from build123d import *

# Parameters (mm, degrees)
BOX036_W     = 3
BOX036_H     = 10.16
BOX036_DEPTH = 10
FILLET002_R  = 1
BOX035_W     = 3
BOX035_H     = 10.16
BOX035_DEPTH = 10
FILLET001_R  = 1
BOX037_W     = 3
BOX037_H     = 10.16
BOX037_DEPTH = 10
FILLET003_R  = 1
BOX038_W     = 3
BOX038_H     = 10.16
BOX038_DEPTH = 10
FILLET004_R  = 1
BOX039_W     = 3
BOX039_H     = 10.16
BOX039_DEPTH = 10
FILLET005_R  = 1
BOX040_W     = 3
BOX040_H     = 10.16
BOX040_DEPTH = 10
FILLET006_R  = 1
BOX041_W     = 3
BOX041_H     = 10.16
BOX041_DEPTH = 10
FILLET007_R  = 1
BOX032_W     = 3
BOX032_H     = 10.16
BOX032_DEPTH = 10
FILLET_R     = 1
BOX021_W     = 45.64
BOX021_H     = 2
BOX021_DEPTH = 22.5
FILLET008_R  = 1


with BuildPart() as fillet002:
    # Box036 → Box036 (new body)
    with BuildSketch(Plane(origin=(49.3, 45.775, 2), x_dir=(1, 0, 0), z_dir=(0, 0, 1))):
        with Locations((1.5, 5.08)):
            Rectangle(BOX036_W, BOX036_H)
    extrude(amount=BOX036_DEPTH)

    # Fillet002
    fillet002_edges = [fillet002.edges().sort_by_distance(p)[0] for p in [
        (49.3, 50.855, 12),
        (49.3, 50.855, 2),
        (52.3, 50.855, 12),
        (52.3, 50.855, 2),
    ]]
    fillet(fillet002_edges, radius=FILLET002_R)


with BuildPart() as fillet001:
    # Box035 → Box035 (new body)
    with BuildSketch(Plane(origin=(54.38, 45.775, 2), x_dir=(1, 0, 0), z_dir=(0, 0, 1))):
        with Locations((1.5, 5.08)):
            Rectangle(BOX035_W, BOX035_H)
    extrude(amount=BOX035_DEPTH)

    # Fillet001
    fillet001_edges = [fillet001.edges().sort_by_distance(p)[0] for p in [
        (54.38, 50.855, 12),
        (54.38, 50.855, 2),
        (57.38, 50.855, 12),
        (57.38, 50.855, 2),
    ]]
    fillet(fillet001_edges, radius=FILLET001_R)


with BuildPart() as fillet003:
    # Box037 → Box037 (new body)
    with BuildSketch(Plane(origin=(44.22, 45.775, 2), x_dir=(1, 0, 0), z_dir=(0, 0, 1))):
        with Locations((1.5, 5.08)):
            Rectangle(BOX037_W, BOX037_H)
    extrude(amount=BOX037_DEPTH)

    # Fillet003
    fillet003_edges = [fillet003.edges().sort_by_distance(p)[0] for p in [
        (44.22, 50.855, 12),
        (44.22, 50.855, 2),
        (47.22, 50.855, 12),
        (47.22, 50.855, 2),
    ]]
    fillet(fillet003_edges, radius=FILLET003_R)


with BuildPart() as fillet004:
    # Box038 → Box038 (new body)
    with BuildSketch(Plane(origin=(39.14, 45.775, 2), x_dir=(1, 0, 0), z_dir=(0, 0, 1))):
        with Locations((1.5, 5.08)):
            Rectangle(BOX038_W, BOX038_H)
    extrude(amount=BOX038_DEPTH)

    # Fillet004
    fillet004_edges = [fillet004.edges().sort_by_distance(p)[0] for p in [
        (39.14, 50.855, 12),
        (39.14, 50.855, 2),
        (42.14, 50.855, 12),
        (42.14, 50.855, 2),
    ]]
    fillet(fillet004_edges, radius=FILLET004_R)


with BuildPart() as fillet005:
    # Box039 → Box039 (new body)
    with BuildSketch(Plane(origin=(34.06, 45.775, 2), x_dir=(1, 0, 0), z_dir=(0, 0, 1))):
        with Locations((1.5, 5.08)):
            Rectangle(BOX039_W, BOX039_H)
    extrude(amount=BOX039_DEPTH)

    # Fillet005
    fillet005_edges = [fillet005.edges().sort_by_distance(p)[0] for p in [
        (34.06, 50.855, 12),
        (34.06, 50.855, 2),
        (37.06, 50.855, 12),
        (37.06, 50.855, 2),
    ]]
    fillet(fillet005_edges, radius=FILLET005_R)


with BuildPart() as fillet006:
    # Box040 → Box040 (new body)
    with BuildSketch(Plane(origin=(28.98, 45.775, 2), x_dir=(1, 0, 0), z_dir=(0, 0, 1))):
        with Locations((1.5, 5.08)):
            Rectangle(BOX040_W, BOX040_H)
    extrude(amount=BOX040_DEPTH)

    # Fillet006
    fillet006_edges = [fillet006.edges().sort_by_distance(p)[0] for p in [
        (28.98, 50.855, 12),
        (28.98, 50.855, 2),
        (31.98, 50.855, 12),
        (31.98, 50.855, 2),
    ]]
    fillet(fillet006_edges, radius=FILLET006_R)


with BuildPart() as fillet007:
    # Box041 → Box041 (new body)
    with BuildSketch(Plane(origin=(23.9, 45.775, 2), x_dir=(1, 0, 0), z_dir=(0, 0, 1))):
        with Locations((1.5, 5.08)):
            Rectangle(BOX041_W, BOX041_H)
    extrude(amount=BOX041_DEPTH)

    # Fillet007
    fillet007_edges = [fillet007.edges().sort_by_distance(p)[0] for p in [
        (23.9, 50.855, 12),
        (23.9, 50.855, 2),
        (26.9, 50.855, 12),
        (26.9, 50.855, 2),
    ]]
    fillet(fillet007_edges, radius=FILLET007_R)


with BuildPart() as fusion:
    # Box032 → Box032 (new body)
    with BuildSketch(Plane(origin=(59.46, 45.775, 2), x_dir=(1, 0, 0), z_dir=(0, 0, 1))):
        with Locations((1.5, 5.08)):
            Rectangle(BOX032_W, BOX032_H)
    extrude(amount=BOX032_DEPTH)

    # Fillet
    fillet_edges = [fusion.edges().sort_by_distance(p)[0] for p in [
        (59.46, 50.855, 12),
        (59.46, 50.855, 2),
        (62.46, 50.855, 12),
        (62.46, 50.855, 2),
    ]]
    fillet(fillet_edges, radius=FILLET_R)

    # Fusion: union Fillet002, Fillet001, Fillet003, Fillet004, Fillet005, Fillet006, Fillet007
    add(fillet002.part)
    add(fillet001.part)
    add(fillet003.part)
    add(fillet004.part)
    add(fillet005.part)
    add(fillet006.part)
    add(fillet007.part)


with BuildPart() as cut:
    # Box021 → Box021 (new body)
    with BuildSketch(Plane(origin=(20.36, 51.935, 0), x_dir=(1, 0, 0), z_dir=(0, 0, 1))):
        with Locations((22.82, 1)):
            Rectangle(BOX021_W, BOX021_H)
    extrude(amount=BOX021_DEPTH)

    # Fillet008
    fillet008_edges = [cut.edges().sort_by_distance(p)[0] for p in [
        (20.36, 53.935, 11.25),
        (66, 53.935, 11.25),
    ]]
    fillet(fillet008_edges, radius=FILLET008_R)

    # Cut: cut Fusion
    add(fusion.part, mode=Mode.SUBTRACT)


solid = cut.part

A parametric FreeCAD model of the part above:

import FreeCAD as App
import Part
import Sketcher
from FreeCAD import Vector
Q = App.Units.Quantity


def edges_at(feature, points):
    """Names of the edges that pass closest to the given points."""
    edges = feature.Shape.Edges
    near = lambda p: min(range(len(edges)), key=lambda i: edges[i].distToShape(Part.Vertex(*p))[0])
    return sorted({f"Edge{near(p) + 1}" for p in points})


def add_polygon(sketch, points):
    """Adds a closed chain of lines whose ends are joined by coincident constraints."""
    first, n = sketch.GeometryCount, len(points)
    for a, b in zip(points, points[1:] + points[:1]):
        sketch.addGeometry(Part.LineSegment(App.Vector(*a, 0), App.Vector(*b, 0)), False)
    for i in range(n):
        sketch.addConstraint(Sketcher.Constraint("Coincident", first + i, 2, first + (i + 1) % n, 1))

doc = App.newDocument("Part")
params = doc.addObject("Spreadsheet::Sheet", "Params")
for row, (alias, value) in enumerate([
    ("sketch1_width", "3 mm"),
    ("sketch1_height", "10.16 mm"),
    ("pad1_length", "10 mm"),
    ("fillet_radius", "1 mm"),
    ("sketch2_width", "3 mm"),
    ("sketch2_height", "10.16 mm"),
    ("pad2_length", "10 mm"),
    ("fillet2_radius", "1 mm"),
    ("sketch3_width", "3 mm"),
    ("sketch3_height", "10.16 mm"),
    ("pad3_length", "10 mm"),
    ("fillet3_radius", "1 mm"),
    ("sketch4_width", "3 mm"),
    ("sketch4_height", "10.16 mm"),
    ("pad4_length", "10 mm"),
    ("fillet4_radius", "1 mm"),
    ("sketch5_width", "3 mm"),
    ("sketch5_height", "10.16 mm"),
    ("pad5_length", "10 mm"),
    ("fillet5_radius", "1 mm"),
    ("sketch6_width", "3 mm"),
    ("sketch6_height", "10.16 mm"),
    ("pad6_length", "10 mm"),
    ("fillet6_radius", "1 mm"),
    ("sketch7_width", "3 mm"),
    ("sketch7_height", "10.16 mm"),
    ("pad7_length", "10 mm"),
    ("fillet7_radius", "1 mm"),
    ("sketch8_width", "3 mm"),
    ("sketch8_height", "10.16 mm"),
    ("pad8_length", "10 mm"),
    ("fillet8_radius", "1 mm"),
    ("sketch9_height", "2 mm"),
    ("sketch9_width", "45.64 mm"),
    ("pad9_length", "22.5 mm"),
    ("fillet9_radius", "1 mm"),
], start=1):
    params.set(f"A{row}", alias)
    params.set(f"B{row}", "=" + value)
    params.setAlias(f"B{row}", alias)

body = doc.addObject("PartDesign::Body", "Body")

sketch1 = body.newObject("Sketcher::SketchObject", "Sketch")
sketch1.AttachmentSupport = (doc.getObject("XY_Plane"), [""])
sketch1.MapMode = "FlatFace"
sketch1.AttachmentOffset = App.Placement(Vector(0, 0, 2), App.Rotation())
add_polygon(sketch1, [(49.3, 55.9), (49.3, 45.8), (52.3, 45.8), (52.3, 55.9)])
sketch1.addConstraint(Sketcher.Constraint("Vertical", 0))
sketch1.addConstraint(Sketcher.Constraint("Horizontal", 1))
sketch1.addConstraint(Sketcher.Constraint("Vertical", 2))
sketch1.addConstraint(Sketcher.Constraint("Horizontal", 3))
sketch1.addConstraint(Sketcher.Constraint("DistanceX", 1, 1, 1, 2, Q("3 mm")))
sketch1.addConstraint(Sketcher.Constraint("DistanceY", 0, 2, 0, 1, Q("10.16 mm")))
sketch1.addConstraint(Sketcher.Constraint("DistanceX", -1, 1, 0, 2, Q("49.3 mm")))
sketch1.addConstraint(Sketcher.Constraint("DistanceY", -1, 1, 0, 2, Q("45.775 mm")))
sketch1.setExpression("Constraints[8]", "Params.sketch1_width")
sketch1.setExpression("Constraints[9]", "Params.sketch1_height")
pad1 = body.newObject("PartDesign::Pad", "Pad")
pad1.Profile = sketch1
pad1.setExpression("Length", "Params.pad1_length")
doc.recompute()

fillet = body.newObject("PartDesign::Fillet", "Fillet")
fillet.Base = (pad1, edges_at(pad1, [
    (49.3, 50.855, 12),
    (49.3, 50.855, 2),
    (52.3, 50.855, 12),
    (52.3, 50.855, 2),
]))
fillet.setExpression("Radius", "Params.fillet_radius")
body2 = doc.addObject("PartDesign::Body", "Body001")

sketch2 = body2.newObject("Sketcher::SketchObject", "Sketch001")
sketch2.AttachmentSupport = (doc.getObject("XY_Plane001"), [""])
sketch2.MapMode = "FlatFace"
sketch2.AttachmentOffset = App.Placement(Vector(0, 0, 2), App.Rotation())
add_polygon(sketch2, [(54.4, 55.9), (54.4, 45.8), (57.4, 45.8), (57.4, 55.9)])
sketch2.addConstraint(Sketcher.Constraint("Vertical", 0))
sketch2.addConstraint(Sketcher.Constraint("Horizontal", 1))
sketch2.addConstraint(Sketcher.Constraint("Vertical", 2))
sketch2.addConstraint(Sketcher.Constraint("Horizontal", 3))
sketch2.addConstraint(Sketcher.Constraint("DistanceX", 1, 1, 1, 2, Q("3 mm")))
sketch2.addConstraint(Sketcher.Constraint("DistanceY", 0, 2, 0, 1, Q("10.16 mm")))
sketch2.addConstraint(Sketcher.Constraint("DistanceX", -1, 1, 0, 2, Q("54.38 mm")))
sketch2.addConstraint(Sketcher.Constraint("DistanceY", -1, 1, 0, 2, Q("45.775 mm")))
sketch2.setExpression("Constraints[8]", "Params.sketch2_width")
sketch2.setExpression("Constraints[9]", "Params.sketch2_height")
pad2 = body2.newObject("PartDesign::Pad", "Pad001")
pad2.Profile = sketch2
pad2.setExpression("Length", "Params.pad2_length")
doc.recompute()

fillet2 = body2.newObject("PartDesign::Fillet", "Fillet001")
fillet2.Base = (pad2, edges_at(pad2, [
    (54.38, 50.855, 12),
    (54.38, 50.855, 2),
    (57.38, 50.855, 12),
    (57.38, 50.855, 2),
]))
fillet2.setExpression("Radius", "Params.fillet2_radius")
body3 = doc.addObject("PartDesign::Body", "Body002")

sketch3 = body3.newObject("Sketcher::SketchObject", "Sketch002")
sketch3.AttachmentSupport = (doc.getObject("XY_Plane002"), [""])
sketch3.MapMode = "FlatFace"
sketch3.AttachmentOffset = App.Placement(Vector(0, 0, 2), App.Rotation())
add_polygon(sketch3, [(44.2, 55.9), (44.2, 45.8), (47.2, 45.8), (47.2, 55.9)])
sketch3.addConstraint(Sketcher.Constraint("Vertical", 0))
sketch3.addConstraint(Sketcher.Constraint("Horizontal", 1))
sketch3.addConstraint(Sketcher.Constraint("Vertical", 2))
sketch3.addConstraint(Sketcher.Constraint("Horizontal", 3))
sketch3.addConstraint(Sketcher.Constraint("DistanceX", 1, 1, 1, 2, Q("3 mm")))
sketch3.addConstraint(Sketcher.Constraint("DistanceY", 0, 2, 0, 1, Q("10.16 mm")))
sketch3.addConstraint(Sketcher.Constraint("DistanceX", -1, 1, 0, 2, Q("44.22 mm")))
sketch3.addConstraint(Sketcher.Constraint("DistanceY", -1, 1, 0, 2, Q("45.775 mm")))
sketch3.setExpression("Constraints[8]", "Params.sketch3_width")
sketch3.setExpression("Constraints[9]", "Params.sketch3_height")
pad3 = body3.newObject("PartDesign::Pad", "Pad002")
pad3.Profile = sketch3
pad3.setExpression("Length", "Params.pad3_length")
doc.recompute()

fillet3 = body3.newObject("PartDesign::Fillet", "Fillet002")
fillet3.Base = (pad3, edges_at(pad3, [
    (44.22, 50.855, 12),
    (44.22, 50.855, 2),
    (47.22, 50.855, 12),
    (47.22, 50.855, 2),
]))
fillet3.setExpression("Radius", "Params.fillet3_radius")
body4 = doc.addObject("PartDesign::Body", "Body003")

sketch4 = body4.newObject("Sketcher::SketchObject", "Sketch003")
sketch4.AttachmentSupport = (doc.getObject("XY_Plane003"), [""])
sketch4.MapMode = "FlatFace"
sketch4.AttachmentOffset = App.Placement(Vector(0, 0, 2), App.Rotation())
add_polygon(sketch4, [(39.1, 55.9), (39.1, 45.8), (42.1, 45.8), (42.1, 55.9)])
sketch4.addConstraint(Sketcher.Constraint("Vertical", 0))
sketch4.addConstraint(Sketcher.Constraint("Horizontal", 1))
sketch4.addConstraint(Sketcher.Constraint("Vertical", 2))
sketch4.addConstraint(Sketcher.Constraint("Horizontal", 3))
sketch4.addConstraint(Sketcher.Constraint("DistanceX", 1, 1, 1, 2, Q("3 mm")))
sketch4.addConstraint(Sketcher.Constraint("DistanceY", 0, 2, 0, 1, Q("10.16 mm")))
sketch4.addConstraint(Sketcher.Constraint("DistanceX", -1, 1, 0, 2, Q("39.14 mm")))
sketch4.addConstraint(Sketcher.Constraint("DistanceY", -1, 1, 0, 2, Q("45.775 mm")))
sketch4.setExpression("Constraints[8]", "Params.sketch4_width")
sketch4.setExpression("Constraints[9]", "Params.sketch4_height")
pad4 = body4.newObject("PartDesign::Pad", "Pad003")
pad4.Profile = sketch4
pad4.setExpression("Length", "Params.pad4_length")
doc.recompute()

fillet4 = body4.newObject("PartDesign::Fillet", "Fillet003")
fillet4.Base = (pad4, edges_at(pad4, [
    (39.14, 50.855, 12),
    (39.14, 50.855, 2),
    (42.14, 50.855, 12),
    (42.14, 50.855, 2),
]))
fillet4.setExpression("Radius", "Params.fillet4_radius")
body5 = doc.addObject("PartDesign::Body", "Body004")

sketch5 = body5.newObject("Sketcher::SketchObject", "Sketch004")
sketch5.AttachmentSupport = (doc.getObject("XY_Plane004"), [""])
sketch5.MapMode = "FlatFace"
sketch5.AttachmentOffset = App.Placement(Vector(0, 0, 2), App.Rotation())
add_polygon(sketch5, [(34.1, 55.9), (34.1, 45.8), (37.1, 45.8), (37.1, 55.9)])
sketch5.addConstraint(Sketcher.Constraint("Vertical", 0))
sketch5.addConstraint(Sketcher.Constraint("Horizontal", 1))
sketch5.addConstraint(Sketcher.Constraint("Vertical", 2))
sketch5.addConstraint(Sketcher.Constraint("Horizontal", 3))
sketch5.addConstraint(Sketcher.Constraint("DistanceX", 1, 1, 1, 2, Q("3 mm")))
sketch5.addConstraint(Sketcher.Constraint("DistanceY", 0, 2, 0, 1, Q("10.16 mm")))
sketch5.addConstraint(Sketcher.Constraint("DistanceX", -1, 1, 0, 2, Q("34.06 mm")))
sketch5.addConstraint(Sketcher.Constraint("DistanceY", -1, 1, 0, 2, Q("45.775 mm")))
sketch5.setExpression("Constraints[8]", "Params.sketch5_width")
sketch5.setExpression("Constraints[9]", "Params.sketch5_height")
pad5 = body5.newObject("PartDesign::Pad", "Pad004")
pad5.Profile = sketch5
pad5.setExpression("Length", "Params.pad5_length")
doc.recompute()

fillet5 = body5.newObject("PartDesign::Fillet", "Fillet004")
fillet5.Base = (pad5, edges_at(pad5, [
    (34.06, 50.855, 12),
    (34.06, 50.855, 2),
    (37.06, 50.855, 12),
    (37.06, 50.855, 2),
]))
fillet5.setExpression("Radius", "Params.fillet5_radius")
body6 = doc.addObject("PartDesign::Body", "Body005")

sketch6 = body6.newObject("Sketcher::SketchObject", "Sketch005")
sketch6.AttachmentSupport = (doc.getObject("XY_Plane005"), [""])
sketch6.MapMode = "FlatFace"
sketch6.AttachmentOffset = App.Placement(Vector(0, 0, 2), App.Rotation())
add_polygon(sketch6, [(29, 55.9), (29, 45.8), (32, 45.8), (32, 55.9)])
sketch6.addConstraint(Sketcher.Constraint("Vertical", 0))
sketch6.addConstraint(Sketcher.Constraint("Horizontal", 1))
sketch6.addConstraint(Sketcher.Constraint("Vertical", 2))
sketch6.addConstraint(Sketcher.Constraint("Horizontal", 3))
sketch6.addConstraint(Sketcher.Constraint("DistanceX", 1, 1, 1, 2, Q("3 mm")))
sketch6.addConstraint(Sketcher.Constraint("DistanceY", 0, 2, 0, 1, Q("10.16 mm")))
sketch6.addConstraint(Sketcher.Constraint("DistanceX", -1, 1, 0, 2, Q("28.98 mm")))
sketch6.addConstraint(Sketcher.Constraint("DistanceY", -1, 1, 0, 2, Q("45.775 mm")))
sketch6.setExpression("Constraints[8]", "Params.sketch6_width")
sketch6.setExpression("Constraints[9]", "Params.sketch6_height")
pad6 = body6.newObject("PartDesign::Pad", "Pad005")
pad6.Profile = sketch6
pad6.setExpression("Length", "Params.pad6_length")
doc.recompute()

fillet6 = body6.newObject("PartDesign::Fillet", "Fillet005")
fillet6.Base = (pad6, edges_at(pad6, [
    (28.98, 50.855, 12),
    (28.98, 50.855, 2),
    (31.98, 50.855, 12),
    (31.98, 50.855, 2),
]))
fillet6.setExpression("Radius", "Params.fillet6_radius")
body7 = doc.addObject("PartDesign::Body", "Body006")

sketch7 = body7.newObject("Sketcher::SketchObject", "Sketch006")
sketch7.AttachmentSupport = (doc.getObject("XY_Plane006"), [""])
sketch7.MapMode = "FlatFace"
sketch7.AttachmentOffset = App.Placement(Vector(0, 0, 2), App.Rotation())
add_polygon(sketch7, [(23.9, 55.9), (23.9, 45.8), (26.9, 45.8), (26.9, 55.9)])
sketch7.addConstraint(Sketcher.Constraint("Vertical", 0))
sketch7.addConstraint(Sketcher.Constraint("Horizontal", 1))
sketch7.addConstraint(Sketcher.Constraint("Vertical", 2))
sketch7.addConstraint(Sketcher.Constraint("Horizontal", 3))
sketch7.addConstraint(Sketcher.Constraint("DistanceX", 1, 1, 1, 2, Q("3 mm")))
sketch7.addConstraint(Sketcher.Constraint("DistanceY", 0, 2, 0, 1, Q("10.16 mm")))
sketch7.addConstraint(Sketcher.Constraint("DistanceX", -1, 1, 0, 2, Q("23.9 mm")))
sketch7.addConstraint(Sketcher.Constraint("DistanceY", -1, 1, 0, 2, Q("45.775 mm")))
sketch7.setExpression("Constraints[8]", "Params.sketch7_width")
sketch7.setExpression("Constraints[9]", "Params.sketch7_height")
pad7 = body7.newObject("PartDesign::Pad", "Pad006")
pad7.Profile = sketch7
pad7.setExpression("Length", "Params.pad7_length")
doc.recompute()

fillet7 = body7.newObject("PartDesign::Fillet", "Fillet006")
fillet7.Base = (pad7, edges_at(pad7, [
    (23.9, 50.855, 12),
    (23.9, 50.855, 2),
    (26.9, 50.855, 12),
    (26.9, 50.855, 2),
]))
fillet7.setExpression("Radius", "Params.fillet7_radius")
body8 = doc.addObject("PartDesign::Body", "Body007")
body8.AllowCompound = True

sketch8 = body8.newObject("Sketcher::SketchObject", "Sketch007")
sketch8.AttachmentSupport = (doc.getObject("XY_Plane007"), [""])
sketch8.MapMode = "FlatFace"
sketch8.AttachmentOffset = App.Placement(Vector(0, 0, 2), App.Rotation())
add_polygon(sketch8, [(59.5, 55.9), (59.5, 45.8), (62.5, 45.8), (62.5, 55.9)])
sketch8.addConstraint(Sketcher.Constraint("Vertical", 0))
sketch8.addConstraint(Sketcher.Constraint("Horizontal", 1))
sketch8.addConstraint(Sketcher.Constraint("Vertical", 2))
sketch8.addConstraint(Sketcher.Constraint("Horizontal", 3))
sketch8.addConstraint(Sketcher.Constraint("DistanceX", 1, 1, 1, 2, Q("3 mm")))
sketch8.addConstraint(Sketcher.Constraint("DistanceY", 0, 2, 0, 1, Q("10.16 mm")))
sketch8.addConstraint(Sketcher.Constraint("DistanceX", -1, 1, 0, 2, Q("59.46 mm")))
sketch8.addConstraint(Sketcher.Constraint("DistanceY", -1, 1, 0, 2, Q("45.775 mm")))
sketch8.setExpression("Constraints[8]", "Params.sketch8_width")
sketch8.setExpression("Constraints[9]", "Params.sketch8_height")
pad8 = body8.newObject("PartDesign::Pad", "Pad007")
pad8.Profile = sketch8
pad8.setExpression("Length", "Params.pad8_length")
doc.recompute()

fillet8 = body8.newObject("PartDesign::Fillet", "Fillet007")
fillet8.Base = (pad8, edges_at(pad8, [
    (59.46, 50.855, 12),
    (59.46, 50.855, 2),
    (62.46, 50.855, 12),
    (62.46, 50.855, 2),
]))
fillet8.setExpression("Radius", "Params.fillet8_radius")
doc.recompute()

boolean = body8.newObject("PartDesign::Boolean", "Boolean")
boolean.Type = "Fuse"
boolean.addObjects([body])
doc.recompute()

boolean2 = body8.newObject("PartDesign::Boolean", "Boolean001")
boolean2.Type = "Fuse"
boolean2.addObjects([body2])
doc.recompute()

boolean3 = body8.newObject("PartDesign::Boolean", "Boolean002")
boolean3.Type = "Fuse"
boolean3.addObjects([body3])
doc.recompute()

boolean4 = body8.newObject("PartDesign::Boolean", "Boolean003")
boolean4.Type = "Fuse"
boolean4.addObjects([body4])
doc.recompute()

boolean5 = body8.newObject("PartDesign::Boolean", "Boolean004")
boolean5.Type = "Fuse"
boolean5.addObjects([body5])
doc.recompute()

boolean6 = body8.newObject("PartDesign::Boolean", "Boolean005")
boolean6.Type = "Fuse"
boolean6.addObjects([body6])
doc.recompute()

boolean7 = body8.newObject("PartDesign::Boolean", "Boolean006")
boolean7.Type = "Fuse"
boolean7.addObjects([body7])
body9 = doc.addObject("PartDesign::Body", "Body008")

sketch9 = body9.newObject("Sketcher::SketchObject", "Sketch008")
sketch9.AttachmentSupport = (doc.getObject("XY_Plane008"), [""])
sketch9.MapMode = "FlatFace"
add_polygon(sketch9, [(20.4, 53.9), (20.4, 51.9), (66, 51.9), (66, 53.9)])
sketch9.addConstraint(Sketcher.Constraint("Vertical", 0))
sketch9.addConstraint(Sketcher.Constraint("Horizontal", 1))
sketch9.addConstraint(Sketcher.Constraint("Vertical", 2))
sketch9.addConstraint(Sketcher.Constraint("Horizontal", 3))
sketch9.addConstraint(Sketcher.Constraint("DistanceY", 0, 2, 0, 1, Q("2 mm")))
sketch9.addConstraint(Sketcher.Constraint("DistanceX", -1, 1, 1, 2, Q("66 mm")))
sketch9.addConstraint(Sketcher.Constraint("DistanceX", 1, 1, 1, 2, Q("45.64 mm")))
sketch9.addConstraint(Sketcher.Constraint("DistanceY", -1, 1, 0, 2, Q("51.935 mm")))
sketch9.setExpression("Constraints[8]", "Params.sketch9_height")
sketch9.setExpression("Constraints[10]", "Params.sketch9_width")
pad9 = body9.newObject("PartDesign::Pad", "Pad008")
pad9.Profile = sketch9
pad9.setExpression("Length", "Params.pad9_length")
doc.recompute()

fillet9 = body9.newObject("PartDesign::Fillet", "Fillet008")
fillet9.Base = (pad9, edges_at(pad9, [(20.36, 53.935, 11.25), (66, 53.935, 11.25)]))
fillet9.setExpression("Radius", "Params.fillet9_radius")
doc.recompute()

boolean8 = body9.newObject("PartDesign::Boolean", "Boolean007")
boolean8.Type = "Cut"
boolean8.addObjects([body8])

doc.recompute()
